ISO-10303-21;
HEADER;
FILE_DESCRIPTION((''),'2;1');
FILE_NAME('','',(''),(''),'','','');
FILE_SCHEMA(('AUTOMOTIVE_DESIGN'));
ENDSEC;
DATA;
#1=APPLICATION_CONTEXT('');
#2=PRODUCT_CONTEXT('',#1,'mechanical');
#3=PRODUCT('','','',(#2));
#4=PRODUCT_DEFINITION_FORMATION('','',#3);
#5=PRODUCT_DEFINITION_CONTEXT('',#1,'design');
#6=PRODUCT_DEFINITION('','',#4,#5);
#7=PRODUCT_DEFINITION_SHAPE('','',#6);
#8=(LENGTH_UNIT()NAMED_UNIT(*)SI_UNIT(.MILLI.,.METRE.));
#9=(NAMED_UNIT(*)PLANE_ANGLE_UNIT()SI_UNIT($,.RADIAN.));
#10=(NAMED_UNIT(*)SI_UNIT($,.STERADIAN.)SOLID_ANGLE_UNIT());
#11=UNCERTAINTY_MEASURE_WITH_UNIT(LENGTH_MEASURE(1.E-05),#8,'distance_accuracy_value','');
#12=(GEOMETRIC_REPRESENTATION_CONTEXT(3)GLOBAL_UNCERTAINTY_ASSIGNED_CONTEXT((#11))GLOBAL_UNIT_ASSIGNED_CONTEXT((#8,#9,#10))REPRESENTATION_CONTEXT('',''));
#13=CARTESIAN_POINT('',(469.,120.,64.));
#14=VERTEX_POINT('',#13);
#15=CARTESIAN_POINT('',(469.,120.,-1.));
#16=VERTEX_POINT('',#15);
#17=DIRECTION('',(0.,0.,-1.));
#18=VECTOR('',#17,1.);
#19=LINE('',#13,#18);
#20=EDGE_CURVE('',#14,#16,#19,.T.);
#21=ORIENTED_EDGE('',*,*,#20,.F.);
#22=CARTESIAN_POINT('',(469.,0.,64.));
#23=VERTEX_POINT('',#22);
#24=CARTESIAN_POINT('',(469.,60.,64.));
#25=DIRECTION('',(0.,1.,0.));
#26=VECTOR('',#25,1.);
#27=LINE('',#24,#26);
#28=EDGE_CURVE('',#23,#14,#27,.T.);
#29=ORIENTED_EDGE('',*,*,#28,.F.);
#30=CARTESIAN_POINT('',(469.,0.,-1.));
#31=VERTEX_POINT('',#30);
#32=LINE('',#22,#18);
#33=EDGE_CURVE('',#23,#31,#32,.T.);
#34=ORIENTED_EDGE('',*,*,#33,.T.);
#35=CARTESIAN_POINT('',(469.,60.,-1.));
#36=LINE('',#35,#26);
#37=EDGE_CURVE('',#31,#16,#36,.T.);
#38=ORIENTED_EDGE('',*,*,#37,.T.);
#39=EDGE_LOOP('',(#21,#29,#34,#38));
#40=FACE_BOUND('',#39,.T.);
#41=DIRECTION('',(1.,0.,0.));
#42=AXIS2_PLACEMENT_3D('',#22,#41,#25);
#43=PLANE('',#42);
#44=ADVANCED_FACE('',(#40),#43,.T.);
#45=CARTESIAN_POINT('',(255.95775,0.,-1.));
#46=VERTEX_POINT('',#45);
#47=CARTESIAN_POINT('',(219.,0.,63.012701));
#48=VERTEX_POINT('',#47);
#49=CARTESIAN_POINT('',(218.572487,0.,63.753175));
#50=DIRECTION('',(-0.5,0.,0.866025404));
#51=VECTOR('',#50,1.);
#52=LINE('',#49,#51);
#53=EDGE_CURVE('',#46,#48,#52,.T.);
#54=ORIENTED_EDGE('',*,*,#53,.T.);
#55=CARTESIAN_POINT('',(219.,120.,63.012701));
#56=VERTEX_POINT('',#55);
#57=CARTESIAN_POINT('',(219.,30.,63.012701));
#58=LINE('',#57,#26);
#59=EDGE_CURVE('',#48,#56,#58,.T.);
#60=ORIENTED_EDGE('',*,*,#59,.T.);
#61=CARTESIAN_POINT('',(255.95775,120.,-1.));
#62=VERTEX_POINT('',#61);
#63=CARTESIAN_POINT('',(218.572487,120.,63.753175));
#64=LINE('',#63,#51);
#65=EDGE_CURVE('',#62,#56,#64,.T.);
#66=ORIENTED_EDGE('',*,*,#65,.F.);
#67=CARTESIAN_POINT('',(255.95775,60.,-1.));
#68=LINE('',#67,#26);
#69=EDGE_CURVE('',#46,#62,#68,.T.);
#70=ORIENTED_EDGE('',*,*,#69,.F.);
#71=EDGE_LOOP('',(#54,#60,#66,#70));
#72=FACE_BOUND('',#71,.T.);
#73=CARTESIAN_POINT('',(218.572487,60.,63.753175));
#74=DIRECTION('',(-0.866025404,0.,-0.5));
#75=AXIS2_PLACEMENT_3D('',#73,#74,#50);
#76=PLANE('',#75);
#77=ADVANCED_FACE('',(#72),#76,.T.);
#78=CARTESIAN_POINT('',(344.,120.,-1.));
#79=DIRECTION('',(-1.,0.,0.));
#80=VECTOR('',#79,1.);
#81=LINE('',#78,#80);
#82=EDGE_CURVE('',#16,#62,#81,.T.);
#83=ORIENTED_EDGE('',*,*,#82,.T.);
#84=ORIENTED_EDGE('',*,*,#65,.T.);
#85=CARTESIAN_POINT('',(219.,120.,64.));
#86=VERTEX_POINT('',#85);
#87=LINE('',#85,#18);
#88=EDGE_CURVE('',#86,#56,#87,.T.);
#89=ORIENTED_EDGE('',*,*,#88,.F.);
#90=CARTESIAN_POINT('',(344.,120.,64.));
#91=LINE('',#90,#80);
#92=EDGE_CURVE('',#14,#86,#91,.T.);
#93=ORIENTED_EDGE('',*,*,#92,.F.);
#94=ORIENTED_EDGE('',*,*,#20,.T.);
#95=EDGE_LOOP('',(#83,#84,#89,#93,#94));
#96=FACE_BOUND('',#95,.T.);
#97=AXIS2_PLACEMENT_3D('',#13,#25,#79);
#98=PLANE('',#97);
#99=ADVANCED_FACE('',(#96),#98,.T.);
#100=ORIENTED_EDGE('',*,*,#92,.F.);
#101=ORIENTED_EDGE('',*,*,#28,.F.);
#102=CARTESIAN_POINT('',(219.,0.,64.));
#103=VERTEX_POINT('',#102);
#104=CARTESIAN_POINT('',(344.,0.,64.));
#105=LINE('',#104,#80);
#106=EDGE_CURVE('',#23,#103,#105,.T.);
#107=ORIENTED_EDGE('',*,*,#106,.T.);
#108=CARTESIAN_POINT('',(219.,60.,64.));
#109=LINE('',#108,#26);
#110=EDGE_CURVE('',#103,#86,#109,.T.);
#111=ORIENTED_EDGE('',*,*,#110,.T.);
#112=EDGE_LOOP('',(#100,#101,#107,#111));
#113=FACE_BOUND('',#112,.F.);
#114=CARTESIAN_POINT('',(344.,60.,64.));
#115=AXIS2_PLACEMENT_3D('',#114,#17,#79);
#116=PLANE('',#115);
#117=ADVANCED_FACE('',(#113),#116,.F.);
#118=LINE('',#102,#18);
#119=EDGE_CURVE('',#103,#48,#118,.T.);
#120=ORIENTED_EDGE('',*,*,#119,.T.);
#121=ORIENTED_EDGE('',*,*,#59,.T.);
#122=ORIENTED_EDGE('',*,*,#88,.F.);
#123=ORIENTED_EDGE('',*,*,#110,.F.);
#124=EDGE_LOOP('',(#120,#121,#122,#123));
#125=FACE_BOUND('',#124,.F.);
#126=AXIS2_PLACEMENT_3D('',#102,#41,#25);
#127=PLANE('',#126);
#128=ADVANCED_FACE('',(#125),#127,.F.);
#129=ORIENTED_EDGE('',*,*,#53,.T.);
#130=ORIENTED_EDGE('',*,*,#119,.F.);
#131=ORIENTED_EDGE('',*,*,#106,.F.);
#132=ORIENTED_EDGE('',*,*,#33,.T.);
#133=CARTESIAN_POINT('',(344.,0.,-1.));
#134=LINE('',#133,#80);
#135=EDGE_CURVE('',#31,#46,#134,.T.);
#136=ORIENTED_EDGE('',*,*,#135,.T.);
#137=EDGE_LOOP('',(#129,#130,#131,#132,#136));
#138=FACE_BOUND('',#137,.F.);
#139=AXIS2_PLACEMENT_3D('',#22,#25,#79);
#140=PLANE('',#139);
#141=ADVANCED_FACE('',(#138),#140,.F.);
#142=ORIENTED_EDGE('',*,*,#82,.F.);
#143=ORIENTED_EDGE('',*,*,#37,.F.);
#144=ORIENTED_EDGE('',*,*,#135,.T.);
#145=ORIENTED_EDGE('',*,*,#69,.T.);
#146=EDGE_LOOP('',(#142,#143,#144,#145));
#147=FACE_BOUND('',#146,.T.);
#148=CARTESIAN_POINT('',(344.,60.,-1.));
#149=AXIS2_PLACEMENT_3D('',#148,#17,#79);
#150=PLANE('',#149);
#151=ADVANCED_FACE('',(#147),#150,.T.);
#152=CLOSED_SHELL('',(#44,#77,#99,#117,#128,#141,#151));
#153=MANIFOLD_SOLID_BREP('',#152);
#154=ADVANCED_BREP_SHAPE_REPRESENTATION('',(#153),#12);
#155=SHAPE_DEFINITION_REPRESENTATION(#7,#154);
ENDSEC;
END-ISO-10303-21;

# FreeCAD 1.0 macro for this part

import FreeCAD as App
import Part
import Sketcher
from FreeCAD import Vector

doc = App.newDocument("Part")
params = doc.addObject("Spreadsheet::Sheet", "Params")
for row, (alias, value) in enumerate([
    ("sketch1_width", "250 mm"),
    ("sketch1_height", "120 mm"),
    ("pad1_length", "65 mm"),
    ("sketch2_width", "250 mm"),
    ("sketch2_height", "120 mm"),
    ("pad2_length", "65 mm"),
], start=1):
    params.set(f"A{row}", alias)
    params.set(f"B{row}", "=" + value)
    params.setAlias(f"B{row}", alias)

body = doc.addObject("PartDesign::Body", "Body")

sketch1 = body.newObject("Sketcher::SketchObject", "Sketch")
sketch1.AttachmentSupport = (doc.getObject("XY_Plane"), [""])
sketch1.MapMode = "FlatFace"
sketch1.addGeometry([
    Part.LineSegment(Vector(0, 120, 0), Vector(0, 0, 0)),
    Part.LineSegment(Vector(0, 0, 0), Vector(250, 0, 0)),
    Part.LineSegment(Vector(250, 0, 0), Vector(250, 120, 0)),
    Part.LineSegment(Vector(250, 120, 0), Vector(0, 120, 0)),
], False)
sketch1.addConstraint([
    Sketcher.Constraint("Coincident", 0, 2, 1, 1),
    Sketcher.Constraint("Coincident", 1, 2, 2, 1),
    Sketcher.Constraint("Coincident", 2, 2, 3, 1),
    Sketcher.Constraint("Coincident", 3, 2, 0, 1),
    Sketcher.Constraint("Vertical", 0),
    Sketcher.Constraint("Horizontal", 1),
    Sketcher.Constraint("Vertical", 2),
    Sketcher.Constraint("Horizontal", 3),
    Sketcher.Constraint("Coincident", 0, 2, -1, 1),
    Sketcher.Constraint("DistanceX", 1, 1, 1, 2, 250.0),
    Sketcher.Constraint("DistanceY", 0, 2, 0, 1, 120.0),
])
sketch1.setExpression("Constraints[9]", "Params.sketch1_width")
sketch1.setExpression("Constraints[10]", "Params.sketch1_height")
pad1 = body.newObject("PartDesign::Pad", "Pad")
pad1.Profile = sketch1
pad1.setExpression("Length", "Params.pad1_length")
body2 = doc.addObject("PartDesign::Body", "Body001")
doc.recompute()

body.Placement = App.Placement(Vector(187.927513, 0, 108.5), App.Rotation(Vector(0, 1, 0), 60))
boolean = body2.newObject("PartDesign::Boolean", "Boolean")
boolean.Type = "Fuse"
boolean.addObjects([body])
body3 = doc.addObject("PartDesign::Body", "Body002")

sketch2 = body3.newObject("Sketcher::SketchObject", "Sketch001")
sketch2.AttachmentSupport = (doc.getObject("XY_Plane002"), [""])
sketch2.MapMode = "FlatFace"
sketch2.addGeometry([
    Part.LineSegment(Vector(0, 120, 0), Vector(0, 0, 0)),
    Part.LineSegment(Vector(0, 0, 0), Vector(250, 0, 0)),
    Part.LineSegment(Vector(250, 0, 0), Vector(250, 120, 0)),
    Part.LineSegment(Vector(250, 120, 0), Vector(0, 120, 0)),
], False)
sketch2.addConstraint([
    Sketcher.Constraint("Coincident", 0, 2, 1, 1),
    Sketcher.Constraint("Coincident", 1, 2, 2, 1),
    Sketcher.Constraint("Coincident", 2, 2, 3, 1),
    Sketcher.Constraint("Coincident", 3, 2, 0, 1),
    Sketcher.Constraint("Vertical", 0),
    Sketcher.Constraint("Horizontal", 1),
    Sketcher.Constraint("Vertical", 2),
    Sketcher.Constraint("Horizontal", 3),
    Sketcher.Constraint("Coincident", 0, 2, -1, 1),
    Sketcher.Constraint("DistanceX", 1, 1, 1, 2, 250.0),
    Sketcher.Constraint("DistanceY", 0, 2, 0, 1, 120.0),
])
sketch2.setExpression("Constraints[9]", "Params.sketch2_width")
sketch2.setExpression("Constraints[10]", "Params.sketch2_height")
pad2 = body3.newObject("PartDesign::Pad", "Pad001")
pad2.Profile = sketch2
pad2.setExpression("Length", "Params.pad2_length")
doc.recompute()

boolean2 = body3.newObject("PartDesign::Boolean", "Boolean001")
boolean2.Type = "Cut"
boolean2.addObjects([body2])
body4 = doc.addObject("PartDesign::Body", "Body003")
doc.recompute()

body3.Placement = App.Placement(Vector(469, 0, 64), App.Rotation(Vector(0, 1, 0), 180))
boolean3 = body4.newObject("PartDesign::Boolean", "Boolean002")
boolean3.Type = "Fuse"
boolean3.addObjects([body3])

doc.recompute()
